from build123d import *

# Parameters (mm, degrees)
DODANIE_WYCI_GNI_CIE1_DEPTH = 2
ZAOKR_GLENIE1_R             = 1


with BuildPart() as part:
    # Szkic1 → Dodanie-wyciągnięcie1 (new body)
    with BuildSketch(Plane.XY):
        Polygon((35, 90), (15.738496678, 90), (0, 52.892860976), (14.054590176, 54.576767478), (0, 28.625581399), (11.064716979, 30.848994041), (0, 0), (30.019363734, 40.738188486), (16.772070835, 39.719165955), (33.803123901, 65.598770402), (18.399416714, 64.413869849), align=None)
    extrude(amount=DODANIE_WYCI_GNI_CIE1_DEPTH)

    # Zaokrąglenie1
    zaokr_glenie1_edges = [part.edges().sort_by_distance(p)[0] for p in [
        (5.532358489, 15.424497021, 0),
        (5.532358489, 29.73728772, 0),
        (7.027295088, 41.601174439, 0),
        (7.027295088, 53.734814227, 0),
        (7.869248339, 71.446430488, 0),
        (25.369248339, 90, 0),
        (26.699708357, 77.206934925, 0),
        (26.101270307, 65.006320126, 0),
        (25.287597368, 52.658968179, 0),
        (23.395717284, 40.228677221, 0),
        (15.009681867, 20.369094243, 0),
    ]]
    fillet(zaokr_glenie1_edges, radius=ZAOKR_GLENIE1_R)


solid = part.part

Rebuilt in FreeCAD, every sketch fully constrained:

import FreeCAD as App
import Part
import Sketcher

V = App.Vector
Q = App.Units.Quantity


def edges_at(feature, points):
    """Names of the edges that pass closest to the given points."""
    edges = feature.Shape.Edges
    near = lambda p: min(range(len(edges)), key=lambda i: edges[i].distToShape(Part.Vertex(*p))[0])
    return sorted({f"Edge{near(p) + 1}" for p in points})


def add_polygon(sketch, points):
    """Adds a closed chain of lines whose ends are joined by coincident constraints."""
    first, n = sketch.GeometryCount, len(points)
    for a, b in zip(points, points[1:] + points[:1]):
        sketch.addGeometry(Part.LineSegment(App.Vector(*a, 0), App.Vector(*b, 0)), False)
    for i in range(n):
        sketch.addConstraint(Sketcher.Constraint("Coincident", first + i, 2, first + (i + 1) % n, 1))

doc = App.newDocument("Part")
body = doc.addObject("PartDesign::Body", "Body")

sketch1 = body.newObject("Sketcher::SketchObject", "Sketch")
sketch1.AttachmentSupport = (doc.getObject("XY_Plane"), [""])
sketch1.MapMode = "FlatFace"
add_polygon(sketch1, [(35, 90), (16, 90), (0, 53), (14, 55), (0, 29), (11, 31), (0, 0), (30, 41), (17, 40), (34, 66), (18, 64)])
sketch1.addConstraint([
    Sketcher.Constraint("Horizontal", 0),
    Sketcher.Constraint("Coincident", 5, 2, -1, 1),
    Sketcher.Constraint("PointOnObject", 1, 2, -2),
    Sketcher.Constraint("PointOnObject", 3, 2, -2),
    Sketcher.Constraint("Parallel", 7, 9),
    Sketcher.Constraint("DistanceY", -1, 1, 0, 2, Q("90 mm")),
    Sketcher.Constraint("DistanceX", -1, 1, 10, 2, Q("35 mm")),
    Sketcher.Constraint("Distance", 4, Q("11.285899 mm")),
    Sketcher.Constraint("DistanceY", 7, 2, 2, 2, Q("14.857602 mm")),
    Sketcher.Constraint("DistanceY", 9, 2, 8, 2, Q("1.184901 mm")),
    Sketcher.Constraint("Distance", 7, Q("13.286428 mm")),
    Sketcher.Constraint("Distance", 8, Q("30.980812 mm")),
    Sketcher.Constraint("DistanceX", 0, 2, 0, 1, Q("19.261503 mm")),
    Sketcher.Constraint("DistanceY", -1, 1, 1, 2, Q("52.892861 mm")),
    Sketcher.Constraint("DistanceX", -1, 1, 2, 2, Q("14.05459 mm")),
    Sketcher.Constraint("DistanceY", -1, 1, 3, 2, Q("28.625581 mm")),
    Sketcher.Constraint("DistanceY", -1, 1, 6, 2, Q("40.738188 mm")),
    Sketcher.Constraint("DistanceX", -1, 1, 7, 2, Q("16.772071 mm")),
    Sketcher.Constraint("DistanceY", -1, 1, 8, 2, Q("65.59877 mm")),
    Sketcher.Constraint("DistanceX", 4, 2, 0, 2, Q("4.67378 mm")),
    Sketcher.Constraint("DistanceY", 6, 2, 2, 2, Q("13.838579 mm")),
])
pad1 = body.newObject("PartDesign::Pad", "Pad")
pad1.Profile = sketch1
pad1.Length = 2
doc.recompute()

fillet = body.newObject("PartDesign::Fillet", "Fillet")
fillet.Base = (pad1, edges_at(pad1, [
    (5.532, 15.424, 0),
    (5.532, 29.737, 0),
    (7.027, 41.601, 0),
    (7.027, 53.735, 0),
    (7.869, 71.446, 0),
    (25.369, 90, 0),
    (26.7, 77.207, 0),
    (26.101, 65.006, 0),
    (25.288, 52.659, 0),
    (23.396, 40.229, 0),
    (15.01, 20.369, 0),
]))
fillet.Radius = 1

doc.recompute()
